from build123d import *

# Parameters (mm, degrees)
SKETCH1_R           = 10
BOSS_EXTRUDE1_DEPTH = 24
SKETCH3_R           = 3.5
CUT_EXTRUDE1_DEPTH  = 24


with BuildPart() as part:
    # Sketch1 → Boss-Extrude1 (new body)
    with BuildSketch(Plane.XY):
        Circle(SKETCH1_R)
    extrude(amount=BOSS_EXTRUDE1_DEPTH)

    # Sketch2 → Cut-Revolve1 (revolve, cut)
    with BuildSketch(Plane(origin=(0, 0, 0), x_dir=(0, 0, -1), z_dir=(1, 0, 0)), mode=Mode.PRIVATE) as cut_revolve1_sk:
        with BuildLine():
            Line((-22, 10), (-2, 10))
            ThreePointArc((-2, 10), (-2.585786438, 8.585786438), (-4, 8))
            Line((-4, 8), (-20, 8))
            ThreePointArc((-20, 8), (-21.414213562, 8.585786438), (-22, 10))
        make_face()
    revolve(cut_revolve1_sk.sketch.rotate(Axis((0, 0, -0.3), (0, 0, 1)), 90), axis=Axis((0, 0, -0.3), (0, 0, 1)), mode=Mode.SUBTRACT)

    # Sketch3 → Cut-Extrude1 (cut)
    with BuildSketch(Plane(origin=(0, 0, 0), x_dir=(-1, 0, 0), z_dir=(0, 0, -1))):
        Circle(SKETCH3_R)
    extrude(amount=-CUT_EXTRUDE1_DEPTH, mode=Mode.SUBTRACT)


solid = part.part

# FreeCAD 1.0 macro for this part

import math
import FreeCAD as App
import Part
import Sketcher
Q = App.Units.Quantity

doc = App.newDocument("Part")
body = doc.addObject("PartDesign::Body", "Body")

# Sketch on XY plane
sketch1 = body.newObject("Sketcher::SketchObject", "Sketch")
sketch1.AttachmentSupport = (doc.getObject("XY_Plane"), [""])
sketch1.MapMode = "FlatFace"
sketch1.addGeometry(Part.Circle(App.Vector(0, 0, 0), App.Vector(0, 0, 1), 10), False)
sketch1.addConstraint([
    Sketcher.Constraint("Coincident", 0, 3, -1, 1),
    Sketcher.Constraint("Diameter", 0, Q("20 mm")),
])
pad1 = body.newObject("PartDesign::Pad", "Pad")
pad1.Profile = sketch1
pad1.Length = 24

# Sketch on YZ plane
sketch2 = body.newObject("Sketcher::SketchObject", "Sketch001")
sketch2.AttachmentSupport = (doc.getObject("YZ_Plane"), [""])
sketch2.MapMode = "FlatFace"
sketch2.addGeometry([
    Part.LineSegment(App.Vector(10, 2, 0), App.Vector(10, 22, 0)),
    Part.ArcOfCircle(Part.Circle(App.Vector(10, 20, 0), App.Vector(0, 0, 1), 2), math.radians(90), math.radians(180)),
    Part.LineSegment(App.Vector(8, 20, 0), App.Vector(8, 4, 0)),
    Part.ArcOfCircle(Part.Circle(App.Vector(10, 4, 0), App.Vector(0, 0, 1), 2), math.radians(-180), math.radians(-90)),
], False)
sketch2.addConstraint([
    Sketcher.Constraint("Coincident", 0, 2, 1, 1),
    Sketcher.Constraint("Tangent", 1, 2, 2, 1),
    Sketcher.Constraint("Tangent", 2, 2, 3, 1),
    Sketcher.Constraint("Coincident", 3, 2, 0, 1),
    Sketcher.Constraint("Vertical", 0),
    Sketcher.Constraint("Vertical", 2),
    Sketcher.Constraint("Equal", 1, 3),
    Sketcher.Constraint("Vertical", 3, 3, 0, 2),
    Sketcher.Constraint("Radius", 1, Q("2 mm")),
    Sketcher.Constraint("DistanceY", 0, 1, 0, 2, Q("20 mm")),
    Sketcher.Constraint("DistanceX", -1, 1, 1, 3, Q("10 mm")),
    Sketcher.Constraint("DistanceY", -1, 1, 1, 3, Q("20 mm")),
])
groove = body.newObject("PartDesign::Groove", "Groove")
groove.Profile = sketch2
groove.ReferenceAxis = (sketch2, ["V_Axis"])
groove.Angle = 360

# Sketch on XY plane
sketch3 = body.newObject("Sketcher::SketchObject", "Sketch002")
sketch3.AttachmentSupport = (doc.getObject("XY_Plane"), [""])
sketch3.MapMode = "FlatFace"
sketch3.addGeometry(Part.Circle(App.Vector(0, 0, 0), App.Vector(0, 0, 1), 3.5), False)
sketch3.addConstraint([
    Sketcher.Constraint("Coincident", 0, 3, -1, 1),
    Sketcher.Constraint("Diameter", 0, Q("7 mm")),
])
pocket1 = body.newObject("PartDesign::Pocket", "Pocket")
pocket1.Profile = sketch3
pocket1.Length = 24
pocket1.Reversed = True

doc.recompute()
